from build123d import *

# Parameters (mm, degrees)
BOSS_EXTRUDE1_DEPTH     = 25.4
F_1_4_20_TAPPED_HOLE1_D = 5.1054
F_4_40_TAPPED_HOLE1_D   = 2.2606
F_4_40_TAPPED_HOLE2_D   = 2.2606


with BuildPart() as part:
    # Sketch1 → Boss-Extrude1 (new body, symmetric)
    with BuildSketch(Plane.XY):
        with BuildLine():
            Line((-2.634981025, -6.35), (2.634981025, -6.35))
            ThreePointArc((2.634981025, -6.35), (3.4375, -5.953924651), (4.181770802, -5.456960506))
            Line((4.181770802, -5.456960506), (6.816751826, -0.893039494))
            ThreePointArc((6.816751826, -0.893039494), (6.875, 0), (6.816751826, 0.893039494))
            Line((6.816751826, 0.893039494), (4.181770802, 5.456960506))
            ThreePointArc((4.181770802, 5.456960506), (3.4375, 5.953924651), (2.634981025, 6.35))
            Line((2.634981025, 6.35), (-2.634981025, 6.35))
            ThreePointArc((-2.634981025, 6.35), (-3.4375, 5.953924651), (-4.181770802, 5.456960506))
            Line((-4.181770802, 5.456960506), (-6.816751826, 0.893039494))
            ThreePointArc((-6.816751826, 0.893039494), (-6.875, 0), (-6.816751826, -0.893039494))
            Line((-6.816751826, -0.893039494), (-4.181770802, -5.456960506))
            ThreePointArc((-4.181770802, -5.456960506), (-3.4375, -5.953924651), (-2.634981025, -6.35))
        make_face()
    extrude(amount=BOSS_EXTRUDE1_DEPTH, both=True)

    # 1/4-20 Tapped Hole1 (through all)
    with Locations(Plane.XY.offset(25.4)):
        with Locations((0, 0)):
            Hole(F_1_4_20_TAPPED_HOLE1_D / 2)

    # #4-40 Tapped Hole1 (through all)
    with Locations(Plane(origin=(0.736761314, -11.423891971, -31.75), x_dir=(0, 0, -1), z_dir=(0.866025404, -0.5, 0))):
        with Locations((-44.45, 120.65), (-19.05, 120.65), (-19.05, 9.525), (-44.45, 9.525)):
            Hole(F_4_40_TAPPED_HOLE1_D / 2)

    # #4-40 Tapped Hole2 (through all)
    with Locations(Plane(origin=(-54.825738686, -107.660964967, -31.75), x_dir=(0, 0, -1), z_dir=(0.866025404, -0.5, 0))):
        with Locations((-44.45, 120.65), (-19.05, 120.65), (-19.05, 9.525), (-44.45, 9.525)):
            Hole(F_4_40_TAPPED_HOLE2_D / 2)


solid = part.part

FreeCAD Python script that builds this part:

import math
import FreeCAD as App
import Part
import Sketcher

V = App.Vector
Q = App.Units.Quantity

doc = App.newDocument("Part")
body = doc.addObject("PartDesign::Body", "Body")

# Sketch on XY plane
sketch1 = body.newObject("Sketcher::SketchObject", "Sketch")
sketch1.AttachmentSupport = (doc.getObject("XY_Plane"), [""])
sketch1.MapMode = "FlatFace"
sketch1.addGeometry([
    Part.LineSegment(V(-2.6, -6.3, 0), V(2.6, -6.3, 0)),  # 0
    Part.ArcOfCircle(Part.Circle(V(0, 0, 0), V(0, 0, 1), 6.9), math.radians(-67.46), math.radians(-52.54)),  # 1
    Part.LineSegment(V(4.2, -5.5, 0), V(6.8, -0.9, 0)),  # 2
    Part.ArcOfCircle(Part.Circle(V(0, 0, 0), V(0, 0, 1), 6.9), math.radians(-7.46), math.radians(7.46)),  # 3
    Part.LineSegment(V(6.8, 0.9, 0), V(4.2, 5.5, 0)),  # 4
    Part.ArcOfCircle(Part.Circle(V(0, 0, 0), V(0, 0, 1), 6.9), math.radians(52.54), math.radians(67.46)),  # 5
    Part.LineSegment(V(2.6, 6.3, 0), V(-2.6, 6.3, 0)),  # 6
    Part.ArcOfCircle(Part.Circle(V(0, 0, 0), V(0, 0, 1), 6.9), math.radians(112.54), math.radians(127.46)),  # 7
    Part.LineSegment(V(-4.2, 5.5, 0), V(-6.8, 0.9, 0)),  # 8
    Part.ArcOfCircle(Part.Circle(V(0, 0, 0), V(0, 0, 1), 6.9), math.radians(172.54), math.radians(187.46)),  # 9
    Part.LineSegment(V(-6.8, -0.9, 0), V(-4.2, -5.5, 0)),  # 10
    Part.ArcOfCircle(Part.Circle(V(0, 0, 0), V(0, 0, 1), 6.9), math.radians(-127.46), math.radians(-112.54)),  # 11
], False)
sketch1.addConstraint([
    Sketcher.Constraint("Coincident", 0, 2, 1, 1),
    Sketcher.Constraint("Coincident", 1, 2, 2, 1),
    Sketcher.Constraint("Coincident", 2, 2, 3, 1),
    Sketcher.Constraint("Coincident", 3, 2, 4, 1),
    Sketcher.Constraint("Coincident", 4, 2, 5, 1),
    Sketcher.Constraint("Coincident", 5, 2, 6, 1),
    Sketcher.Constraint("Coincident", 6, 2, 7, 1),
    Sketcher.Constraint("Coincident", 7, 2, 8, 1),
    Sketcher.Constraint("Coincident", 8, 2, 9, 1),
    Sketcher.Constraint("Coincident", 9, 2, 10, 1),
    Sketcher.Constraint("Coincident", 10, 2, 11, 1),
    Sketcher.Constraint("Coincident", 11, 2, 0, 1),
    Sketcher.Constraint("Horizontal", 0),
    Sketcher.Constraint("Horizontal", 6),
    Sketcher.Constraint("Coincident", 1, 3, -1, 1),
    Sketcher.Constraint("Coincident", 3, 3, -1, 1),
    Sketcher.Constraint("Coincident", 5, 3, -1, 1),
    Sketcher.Constraint("Coincident", 7, 3, -1, 1),
    Sketcher.Constraint("Coincident", 9, 3, -1, 1),
    Sketcher.Constraint("Coincident", 11, 3, -1, 1),
    Sketcher.Constraint("Equal", 1, 3),
    Sketcher.Constraint("Equal", 3, 5),
    Sketcher.Constraint("Equal", 5, 7),
    Sketcher.Constraint("Equal", 7, 9),
    Sketcher.Constraint("Equal", 9, 11),
    Sketcher.Constraint("Parallel", 2, 8),
    Sketcher.Constraint("Parallel", 4, 10),
    Sketcher.Constraint("Horizontal", 4, 2, 7, 2),
    Sketcher.Constraint("Horizontal", 3, 2, 8, 2),
    Sketcher.Constraint("Horizontal", 2, 2, 9, 2),
    Sketcher.Constraint("Vertical", 2, 2, 3, 2),
    Sketcher.Constraint("Vertical", 0, 2, 5, 2),
    Sketcher.Constraint("Angle", 2, Q("60 deg")),
    Sketcher.Constraint("DistanceY", 0, 2, -1, 1, Q("0.25 in")),
    Sketcher.Constraint("Radius", 1, Q("6.875 mm")),
    Sketcher.Constraint("DistanceY", 1, 2, 3, 2, Q("0.25 in")),
])
pad1 = body.newObject("PartDesign::Pad", "Pad")
pad1.Profile = sketch1
pad1.Length = Q("2 in")
pad1.Midplane = True

# Sketch on XY plane
sketch2 = body.newObject("Sketcher::SketchObject", "Sketch001")
sketch2.AttachmentSupport = (doc.getObject("XY_Plane"), [""])
sketch2.MapMode = "FlatFace"
sketch2.AttachmentOffset = App.Placement(V(0, 0, 1 * 25.4), App.Rotation())
sketch2.addGeometry(Part.Circle(V(0, 0, 0), V(0, 0, 1), 2.6), False)
sketch2.addConstraint([
    Sketcher.Constraint("Coincident", 0, 3, -1, 1),
    Sketcher.Constraint("Diameter", 0, Q("0.201 in")),
])
doc.recompute()
hole = body.newObject("PartDesign::Hole", "Hole")
hole.Profile = sketch2
hole.ThreadType = "None"
hole.Diameter = Q("0.201 in")
hole.DepthType = "ThroughAll"

# Sketch on an angled plane
sketch3 = body.newObject("Sketcher::SketchObject", "Sketch002")
sketch3.Placement = App.Placement(V(5.499261, -3.175, 0), App.Rotation(V(0, 0, -1), V(0.5, 0.866025404, 0), V(0.866025404, -0.5, 0), "ZXY"))
sketch3.addGeometry([
    Part.Circle(V(-12.7, 111.1, 0), V(0, 0, 1), 1.1),
    Part.Circle(V(12.7, 111.1, 0), V(0, 0, 1), 1.1),
    Part.Circle(V(12.7, 0, 0), V(0, 0, 1), 1.1),
    Part.Circle(V(-12.7, 0, 0), V(0, 0, 1), 1.1),
], False)
sketch3.addConstraint([
    Sketcher.Constraint("Equal", 0, 1),
    Sketcher.Constraint("Equal", 1, 2),
    Sketcher.Constraint("Equal", 2, 3),
    Sketcher.Constraint("Symmetric", 2, 3, 3, 3, -1, 1),
    Sketcher.Constraint("Symmetric", 0, 3, 1, 3, -2),
    Sketcher.Constraint("PointOnObject", 2, 3, -1),
    Sketcher.Constraint("Vertical", 1, 3, 2, 3),
    Sketcher.Constraint("Diameter", 0, Q("0.089 in")),
    Sketcher.Constraint("DistanceX", 0, 3, 1, 3, Q("1 in")),
    Sketcher.Constraint("DistanceY", -1, 1, 0, 3, Q("4.375 in")),
])
doc.recompute()
hole2 = body.newObject("PartDesign::Hole", "Hole001")
hole2.Profile = sketch3
hole2.ThreadType = "None"
hole2.Diameter = Q("0.089 in")
hole2.DepthType = "ThroughAll"

# Sketch on an angled plane
sketch4 = body.newObject("Sketcher::SketchObject", "Sketch003")
sketch4.Placement = App.Placement(V(5.499261, -3.175, 0), App.Rotation(V(0, 0, -1), V(0.5, 0.866025404, 0), V(0.866025404, -0.5, 0), "ZXY"))
sketch4.addGeometry([
    Part.Circle(V(-12.7, 0, 0), V(0, 0, 1), 1.1),
    Part.Circle(V(12.7, 0, 0), V(0, 0, 1), 1.1),
    Part.Circle(V(12.7, -111.1, 0), V(0, 0, 1), 1.1),
    Part.Circle(V(-12.7, -111.1, 0), V(0, 0, 1), 1.1),
], False)
sketch4.addConstraint([
    Sketcher.Constraint("Equal", 0, 1),
    Sketcher.Constraint("Equal", 1, 2),
    Sketcher.Constraint("Equal", 2, 3),
    Sketcher.Constraint("Symmetric", 0, 3, 1, 3, -1, 1),
    Sketcher.Constraint("Symmetric", 2, 3, 3, 3, -2),
    Sketcher.Constraint("PointOnObject", 0, 3, -1),
    Sketcher.Constraint("Vertical", 1, 3, 2, 3),
    Sketcher.Constraint("Diameter", 0, Q("0.089 in")),
    Sketcher.Constraint("DistanceX", 0, 3, 1, 3, Q("1 in")),
    Sketcher.Constraint("DistanceY", 2, 3, -1, 1, Q("4.375 in")),
])
doc.recompute()
hole3 = body.newObject("PartDesign::Hole", "Hole002")
hole3.Profile = sketch4
hole3.ThreadType = "None"
hole3.Diameter = Q("0.089 in")
hole3.DepthType = "ThroughAll"

doc.recompute()
